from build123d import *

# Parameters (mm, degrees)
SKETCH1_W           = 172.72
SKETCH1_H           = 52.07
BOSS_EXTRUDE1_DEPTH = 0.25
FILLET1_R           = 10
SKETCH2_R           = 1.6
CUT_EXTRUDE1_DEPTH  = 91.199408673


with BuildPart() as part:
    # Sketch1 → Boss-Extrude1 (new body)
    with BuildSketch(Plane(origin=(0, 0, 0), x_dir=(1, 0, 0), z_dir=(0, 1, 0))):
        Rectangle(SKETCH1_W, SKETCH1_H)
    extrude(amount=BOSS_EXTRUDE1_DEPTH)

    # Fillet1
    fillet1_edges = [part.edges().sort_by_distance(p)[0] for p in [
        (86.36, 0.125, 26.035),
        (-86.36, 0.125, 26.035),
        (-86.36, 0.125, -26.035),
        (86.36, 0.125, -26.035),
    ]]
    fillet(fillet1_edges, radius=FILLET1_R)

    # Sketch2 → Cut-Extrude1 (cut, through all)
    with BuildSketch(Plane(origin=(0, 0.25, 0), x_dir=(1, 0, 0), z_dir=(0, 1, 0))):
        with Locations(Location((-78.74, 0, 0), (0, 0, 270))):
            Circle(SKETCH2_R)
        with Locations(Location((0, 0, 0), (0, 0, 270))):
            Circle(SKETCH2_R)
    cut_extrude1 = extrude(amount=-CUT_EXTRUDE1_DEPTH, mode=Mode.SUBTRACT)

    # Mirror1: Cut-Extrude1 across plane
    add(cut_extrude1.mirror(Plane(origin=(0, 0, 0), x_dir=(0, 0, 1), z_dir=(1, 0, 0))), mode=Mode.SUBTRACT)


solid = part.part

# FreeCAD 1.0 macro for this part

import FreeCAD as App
import Part
import Sketcher

V = App.Vector


def edges_at(feature, points):
    """Names of the edges that pass closest to the given points."""
    edges = feature.Shape.Edges
    near = lambda p: min(range(len(edges)), key=lambda i: edges[i].distToShape(Part.Vertex(*p))[0])
    return sorted({f"Edge{near(p) + 1}" for p in points})

doc = App.newDocument("Part")
body = doc.addObject("PartDesign::Body", "Body")

# Sketch on XZ plane
sketch1 = doc.addObject("Sketcher::SketchObject", "Sketch")
body.addObject(sketch1)
sketch1.AttachmentSupport = (doc.XZ_Plane, [""])
sketch1.MapMode = "FlatFace"
sketch1.addGeometry(Part.LineSegment(V(-86.36, -26.035, 0), V(-86.36, 26.035, 0)), False)
sketch1.addGeometry(Part.LineSegment(V(-86.36, 26.035, 0), V(86.36, 26.035, 0)), False)
sketch1.addGeometry(Part.LineSegment(V(86.36, 26.035, 0), V(86.36, -26.035, 0)), False)
sketch1.addGeometry(Part.LineSegment(V(86.36, -26.035, 0), V(-86.36, -26.035, 0)), False)
sketch1.addConstraint(Sketcher.Constraint("Coincident", 0, 2, 1, 1))
sketch1.addConstraint(Sketcher.Constraint("Coincident", 1, 2, 2, 1))
sketch1.addConstraint(Sketcher.Constraint("Coincident", 2, 2, 3, 1))
sketch1.addConstraint(Sketcher.Constraint("Coincident", 3, 2, 0, 1))
sketch1.addConstraint(Sketcher.Constraint("Vertical", 0))
sketch1.addConstraint(Sketcher.Constraint("Horizontal", 1))
sketch1.addConstraint(Sketcher.Constraint("Vertical", 2))
sketch1.addConstraint(Sketcher.Constraint("Horizontal", 3))
sketch1.addConstraint(Sketcher.Constraint("Symmetric", 0, 2, 2, 2, -1, 1))
sketch1.addConstraint(Sketcher.Constraint("DistanceX", 1, 1, 1, 2, 172.72))
sketch1.addConstraint(Sketcher.Constraint("DistanceY", 0, 1, 0, 2, 52.07))
pad1 = doc.addObject("PartDesign::Pad", "Pad")
body.addObject(pad1)
pad1.Profile = sketch1
pad1.Length = 0.25
pad1.Reversed = True
doc.recompute()

fillet = doc.addObject("PartDesign::Fillet", "Fillet")
body.addObject(fillet)
fillet.Base = (pad1, edges_at(pad1, [
    (86.36, 0.125, 26.035),
    (-86.36, 0.125, 26.035),
    (-86.36, 0.125, -26.035),
    (86.36, 0.125, -26.035),
]))
fillet.Radius = 10

# Sketch on XZ plane
sketch2 = doc.addObject("Sketcher::SketchObject", "Sketch001")
body.addObject(sketch2)
sketch2.AttachmentSupport = (doc.XZ_Plane, [""])
sketch2.MapMode = "FlatFace"
sketch2.AttachmentOffset = App.Placement(V(0, 0, -0.25), App.Rotation())
sketch2.addGeometry(Part.Circle(V(-78.74, 0, 0), V(0, 0, 1), 1.6), False)
sketch2.addGeometry(Part.Circle(V(0, 0, 0), V(0, 0, 1), 1.6), False)
sketch2.addConstraint(Sketcher.Constraint("Coincident", 1, 3, -1, 1))
sketch2.addConstraint(Sketcher.Constraint("Equal", 0, 1))
sketch2.addConstraint(Sketcher.Constraint("PointOnObject", 0, 3, -1))
sketch2.addConstraint(Sketcher.Constraint("Diameter", 0, 3.2))
sketch2.addConstraint(Sketcher.Constraint("DistanceX", 0, 3, -1, 1, 78.74))
pocket1 = doc.addObject("PartDesign::Pocket", "Pocket")
body.addObject(pocket1)
pocket1.Profile = sketch2
pocket1.Type = "ThroughAll"
pocket1.Reversed = True
doc.recompute()

mirrored = doc.addObject("PartDesign::Mirrored", "Mirrored")
body.addObject(mirrored)
mirrored.Originals = [pocket1]
mirrored.MirrorPlane = (doc.YZ_Plane, [""])
body.Tip = mirrored

doc.recompute()
